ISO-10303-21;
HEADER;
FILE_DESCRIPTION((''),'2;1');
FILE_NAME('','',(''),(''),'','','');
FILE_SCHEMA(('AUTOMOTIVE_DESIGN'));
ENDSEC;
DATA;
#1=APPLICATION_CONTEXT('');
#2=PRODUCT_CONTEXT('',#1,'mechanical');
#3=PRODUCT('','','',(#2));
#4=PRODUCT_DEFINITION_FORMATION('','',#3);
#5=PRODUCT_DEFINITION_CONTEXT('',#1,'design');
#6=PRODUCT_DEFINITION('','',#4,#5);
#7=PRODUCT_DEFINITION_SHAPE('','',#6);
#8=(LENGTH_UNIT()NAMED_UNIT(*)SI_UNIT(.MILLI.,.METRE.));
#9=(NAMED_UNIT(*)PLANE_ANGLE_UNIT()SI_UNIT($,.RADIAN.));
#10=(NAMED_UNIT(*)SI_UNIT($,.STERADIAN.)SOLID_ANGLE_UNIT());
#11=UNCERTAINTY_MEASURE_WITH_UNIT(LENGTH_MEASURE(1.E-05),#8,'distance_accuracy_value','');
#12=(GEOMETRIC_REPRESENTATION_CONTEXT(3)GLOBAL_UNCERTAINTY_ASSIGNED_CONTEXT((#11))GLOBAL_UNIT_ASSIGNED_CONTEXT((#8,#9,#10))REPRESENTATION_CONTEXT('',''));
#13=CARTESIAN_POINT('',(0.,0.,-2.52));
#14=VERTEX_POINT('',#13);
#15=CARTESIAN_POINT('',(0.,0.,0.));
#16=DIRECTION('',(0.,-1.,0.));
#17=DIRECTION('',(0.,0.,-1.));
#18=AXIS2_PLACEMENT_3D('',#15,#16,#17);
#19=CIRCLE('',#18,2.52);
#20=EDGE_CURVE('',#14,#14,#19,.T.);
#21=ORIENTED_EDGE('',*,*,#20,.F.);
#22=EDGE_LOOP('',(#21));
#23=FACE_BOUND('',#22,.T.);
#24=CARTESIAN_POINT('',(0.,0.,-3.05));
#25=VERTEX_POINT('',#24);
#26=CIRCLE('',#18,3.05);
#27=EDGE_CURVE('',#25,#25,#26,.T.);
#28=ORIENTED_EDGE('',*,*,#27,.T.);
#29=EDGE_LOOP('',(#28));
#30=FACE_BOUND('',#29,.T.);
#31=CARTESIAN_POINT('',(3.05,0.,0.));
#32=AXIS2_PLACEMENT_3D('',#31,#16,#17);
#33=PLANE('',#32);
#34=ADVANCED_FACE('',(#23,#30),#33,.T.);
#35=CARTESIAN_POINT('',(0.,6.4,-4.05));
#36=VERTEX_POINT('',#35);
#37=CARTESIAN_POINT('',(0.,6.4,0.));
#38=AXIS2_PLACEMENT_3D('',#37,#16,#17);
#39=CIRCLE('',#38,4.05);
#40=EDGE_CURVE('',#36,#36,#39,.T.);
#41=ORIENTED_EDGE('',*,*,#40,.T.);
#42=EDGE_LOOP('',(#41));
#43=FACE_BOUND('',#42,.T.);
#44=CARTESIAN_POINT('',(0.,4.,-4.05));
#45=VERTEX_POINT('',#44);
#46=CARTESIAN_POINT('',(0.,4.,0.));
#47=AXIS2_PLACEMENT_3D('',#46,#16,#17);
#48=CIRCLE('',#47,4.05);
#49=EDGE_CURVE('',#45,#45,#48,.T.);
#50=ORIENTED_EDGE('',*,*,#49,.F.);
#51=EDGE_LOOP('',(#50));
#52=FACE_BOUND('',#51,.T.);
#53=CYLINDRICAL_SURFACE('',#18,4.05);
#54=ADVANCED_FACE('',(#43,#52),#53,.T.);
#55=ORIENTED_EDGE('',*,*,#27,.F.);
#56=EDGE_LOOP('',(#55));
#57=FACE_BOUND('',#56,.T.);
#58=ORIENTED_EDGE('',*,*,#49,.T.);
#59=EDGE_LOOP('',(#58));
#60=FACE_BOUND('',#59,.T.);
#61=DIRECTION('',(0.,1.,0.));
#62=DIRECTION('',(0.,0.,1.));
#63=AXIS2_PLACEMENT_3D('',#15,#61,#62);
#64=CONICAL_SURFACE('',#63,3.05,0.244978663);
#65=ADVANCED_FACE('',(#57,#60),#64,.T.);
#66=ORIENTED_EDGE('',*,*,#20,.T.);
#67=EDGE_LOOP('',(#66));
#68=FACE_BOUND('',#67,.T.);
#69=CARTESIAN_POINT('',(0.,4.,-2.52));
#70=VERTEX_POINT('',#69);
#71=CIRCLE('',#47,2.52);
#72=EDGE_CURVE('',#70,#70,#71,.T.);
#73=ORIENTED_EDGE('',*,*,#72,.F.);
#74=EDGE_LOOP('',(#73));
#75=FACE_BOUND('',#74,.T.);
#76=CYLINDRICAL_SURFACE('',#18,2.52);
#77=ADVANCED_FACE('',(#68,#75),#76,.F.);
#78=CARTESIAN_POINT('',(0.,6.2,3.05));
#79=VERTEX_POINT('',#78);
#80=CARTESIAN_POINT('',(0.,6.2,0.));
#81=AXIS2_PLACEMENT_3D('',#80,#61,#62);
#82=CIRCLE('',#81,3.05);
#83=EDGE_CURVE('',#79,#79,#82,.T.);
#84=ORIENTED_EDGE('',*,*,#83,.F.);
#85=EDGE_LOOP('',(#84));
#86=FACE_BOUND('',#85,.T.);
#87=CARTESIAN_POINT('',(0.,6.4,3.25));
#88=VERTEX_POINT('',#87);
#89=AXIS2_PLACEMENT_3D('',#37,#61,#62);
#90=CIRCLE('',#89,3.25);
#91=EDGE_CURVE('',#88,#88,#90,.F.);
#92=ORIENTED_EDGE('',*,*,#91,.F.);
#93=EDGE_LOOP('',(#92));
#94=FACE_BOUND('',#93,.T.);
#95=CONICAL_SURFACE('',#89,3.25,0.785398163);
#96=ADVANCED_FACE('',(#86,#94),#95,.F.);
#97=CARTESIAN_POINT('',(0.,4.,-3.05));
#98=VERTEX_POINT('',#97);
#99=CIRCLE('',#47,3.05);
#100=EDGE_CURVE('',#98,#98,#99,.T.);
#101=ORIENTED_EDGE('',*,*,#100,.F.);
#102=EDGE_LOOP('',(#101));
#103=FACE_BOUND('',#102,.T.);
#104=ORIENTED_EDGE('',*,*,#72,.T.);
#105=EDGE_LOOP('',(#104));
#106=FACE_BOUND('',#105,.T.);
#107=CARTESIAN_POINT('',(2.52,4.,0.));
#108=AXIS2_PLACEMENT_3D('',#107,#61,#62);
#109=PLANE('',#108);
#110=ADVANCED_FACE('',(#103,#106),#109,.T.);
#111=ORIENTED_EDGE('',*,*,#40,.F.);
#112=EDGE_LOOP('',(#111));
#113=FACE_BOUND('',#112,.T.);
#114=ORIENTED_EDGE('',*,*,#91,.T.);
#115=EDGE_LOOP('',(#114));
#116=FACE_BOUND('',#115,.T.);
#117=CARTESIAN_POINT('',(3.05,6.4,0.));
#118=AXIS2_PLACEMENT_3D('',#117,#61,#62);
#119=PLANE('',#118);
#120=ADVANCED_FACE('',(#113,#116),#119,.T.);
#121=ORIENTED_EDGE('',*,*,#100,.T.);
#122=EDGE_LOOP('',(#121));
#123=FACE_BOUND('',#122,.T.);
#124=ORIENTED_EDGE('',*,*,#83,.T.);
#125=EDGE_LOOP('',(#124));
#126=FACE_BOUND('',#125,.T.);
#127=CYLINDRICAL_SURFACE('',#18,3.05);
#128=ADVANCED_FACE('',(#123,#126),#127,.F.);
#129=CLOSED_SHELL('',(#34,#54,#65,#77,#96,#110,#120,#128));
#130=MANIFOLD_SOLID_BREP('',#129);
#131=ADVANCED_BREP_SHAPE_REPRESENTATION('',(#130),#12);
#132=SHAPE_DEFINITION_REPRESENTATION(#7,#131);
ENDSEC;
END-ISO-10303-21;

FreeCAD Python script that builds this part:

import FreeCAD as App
import Part
import Sketcher


def edges_at(feature, points):
    """Names of the edges that pass closest to the given points."""
    edges = feature.Shape.Edges
    near = lambda p: min(range(len(edges)), key=lambda i: edges[i].distToShape(Part.Vertex(*p))[0])
    return sorted({f"Edge{near(p) + 1}" for p in points})


def add_polygon(sketch, points):
    """Adds a closed chain of lines whose ends are joined by coincident constraints."""
    first, n = sketch.GeometryCount, len(points)
    for a, b in zip(points, points[1:] + points[:1]):
        sketch.addGeometry(Part.LineSegment(App.Vector(*a, 0), App.Vector(*b, 0)), False)
    for i in range(n):
        sketch.addConstraint(Sketcher.Constraint("Coincident", first + i, 2, first + (i + 1) % n, 1))

doc = App.newDocument("Part")
params = doc.addObject("Spreadsheet::Sheet", "Params")
for row, (alias, value) in enumerate([
    ("sketch1_width", "1 mm"),
    ("sketch1_height", "4 mm"),
    ("sketch1_height2", "2.4 mm"),
    ("sketch1_width2", "0.53 mm"),
    ("revolution_angle", "360 deg"),
    ("chamfer_size", "0.2 mm"),
], start=1):
    params.set(f"A{row}", alias)
    params.set(f"B{row}", "=" + value)
    params.setAlias(f"B{row}", alias)

body = doc.addObject("PartDesign::Body", "Body")

sketch1 = doc.addObject("Sketcher::SketchObject", "Sketch")
body.addObject(sketch1)
sketch1.AttachmentSupport = (doc.XY_Plane, [""])
sketch1.MapMode = "FlatFace"
add_polygon(sketch1, [(2.52, 4), (2.52, 0), (3.05, 0), (4.05, 4), (4.05, 6.4), (3.05, 6.4), (3.05, 4)])
sketch1.addConstraint([
    Sketcher.Constraint("Vertical", 0),
    Sketcher.Constraint("Horizontal", 1),
    Sketcher.Constraint("Vertical", 3),
    Sketcher.Constraint("Horizontal", 4),
    Sketcher.Constraint("Vertical", 5),
    Sketcher.Constraint("Horizontal", 6),
    Sketcher.Constraint("PointOnObject", 0, 2, -1),
    Sketcher.Constraint("Horizontal", 2, 2, 5, 2),
    Sketcher.Constraint("Vertical", 1, 2, 4, 2),
    Sketcher.Constraint("DistanceX", 4, 2, 4, 1, 1.0),
    Sketcher.Constraint("DistanceY", 0, 2, 0, 1, 4.0),
    Sketcher.Constraint("DistanceY", 3, 1, 3, 2, 2.4),
    Sketcher.Constraint("DistanceX", 1, 1, 1, 2, 0.53),
    Sketcher.Constraint("DistanceX", -1, 1, 0, 2, 2.52),
])
sketch1.setExpression("Constraints[16]", "Params.sketch1_width")
sketch1.setExpression("Constraints[17]", "Params.sketch1_height")
sketch1.setExpression("Constraints[18]", "Params.sketch1_height2")
sketch1.setExpression("Constraints[19]", "Params.sketch1_width2")
revolution = doc.addObject("PartDesign::Revolution", "Revolution")
body.addObject(revolution)
revolution.Profile = sketch1
revolution.ReferenceAxis = (sketch1, ["V_Axis"])
revolution.setExpression("Angle", "Params.revolution_angle")
doc.recompute()

chamfer = doc.addObject("PartDesign::Chamfer", "Chamfer")
body.addObject(chamfer)
chamfer.Base = (revolution, edges_at(revolution, [(0, 6.4, 3.05)]))
chamfer.setExpression("Size", "Params.chamfer_size")

doc.recompute()
